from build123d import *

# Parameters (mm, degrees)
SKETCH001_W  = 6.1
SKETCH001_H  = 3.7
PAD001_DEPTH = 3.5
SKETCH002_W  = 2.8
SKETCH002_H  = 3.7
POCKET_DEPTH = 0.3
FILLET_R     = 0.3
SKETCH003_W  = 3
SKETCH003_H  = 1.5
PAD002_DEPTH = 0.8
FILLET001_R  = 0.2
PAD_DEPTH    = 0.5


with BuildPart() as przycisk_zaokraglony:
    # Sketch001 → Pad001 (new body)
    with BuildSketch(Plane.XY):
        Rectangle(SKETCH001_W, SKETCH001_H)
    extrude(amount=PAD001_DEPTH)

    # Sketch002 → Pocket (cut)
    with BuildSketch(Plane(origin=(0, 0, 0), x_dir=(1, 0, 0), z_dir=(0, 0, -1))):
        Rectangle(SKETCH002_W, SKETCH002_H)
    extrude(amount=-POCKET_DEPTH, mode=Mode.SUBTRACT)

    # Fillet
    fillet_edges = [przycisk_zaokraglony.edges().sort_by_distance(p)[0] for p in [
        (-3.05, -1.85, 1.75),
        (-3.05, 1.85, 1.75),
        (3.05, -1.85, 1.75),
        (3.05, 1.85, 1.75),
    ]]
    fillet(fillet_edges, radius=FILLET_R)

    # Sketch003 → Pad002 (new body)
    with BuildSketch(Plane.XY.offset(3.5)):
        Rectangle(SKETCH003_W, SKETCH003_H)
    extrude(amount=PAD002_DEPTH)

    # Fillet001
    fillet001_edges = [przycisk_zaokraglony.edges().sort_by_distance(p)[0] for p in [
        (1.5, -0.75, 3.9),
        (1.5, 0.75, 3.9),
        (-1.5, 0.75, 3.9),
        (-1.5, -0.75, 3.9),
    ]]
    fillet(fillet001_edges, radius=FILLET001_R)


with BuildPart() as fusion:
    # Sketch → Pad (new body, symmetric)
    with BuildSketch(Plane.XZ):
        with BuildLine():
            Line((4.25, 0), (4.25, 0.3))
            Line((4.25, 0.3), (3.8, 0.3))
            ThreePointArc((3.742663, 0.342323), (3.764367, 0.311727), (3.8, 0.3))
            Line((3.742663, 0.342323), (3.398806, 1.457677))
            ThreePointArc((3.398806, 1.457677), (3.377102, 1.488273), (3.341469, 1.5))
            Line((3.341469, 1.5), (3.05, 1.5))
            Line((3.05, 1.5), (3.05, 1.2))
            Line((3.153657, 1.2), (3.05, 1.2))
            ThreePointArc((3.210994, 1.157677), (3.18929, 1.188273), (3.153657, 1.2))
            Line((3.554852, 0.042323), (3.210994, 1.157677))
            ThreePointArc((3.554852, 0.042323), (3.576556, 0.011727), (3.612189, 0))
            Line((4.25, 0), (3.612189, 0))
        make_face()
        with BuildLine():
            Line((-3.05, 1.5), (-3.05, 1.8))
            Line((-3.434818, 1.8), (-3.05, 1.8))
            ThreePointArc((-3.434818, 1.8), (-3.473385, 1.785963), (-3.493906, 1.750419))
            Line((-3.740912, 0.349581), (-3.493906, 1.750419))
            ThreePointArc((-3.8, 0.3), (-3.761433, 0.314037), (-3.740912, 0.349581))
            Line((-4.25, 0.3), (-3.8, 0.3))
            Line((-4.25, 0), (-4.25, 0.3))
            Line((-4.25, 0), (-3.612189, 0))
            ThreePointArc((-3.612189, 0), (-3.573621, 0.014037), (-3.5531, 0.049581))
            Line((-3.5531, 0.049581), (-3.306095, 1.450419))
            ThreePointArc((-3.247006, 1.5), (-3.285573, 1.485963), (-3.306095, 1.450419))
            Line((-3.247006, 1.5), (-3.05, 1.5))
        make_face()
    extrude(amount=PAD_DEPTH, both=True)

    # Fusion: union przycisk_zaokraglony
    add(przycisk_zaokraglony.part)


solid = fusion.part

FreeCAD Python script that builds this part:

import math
import FreeCAD as App
import Part
import Sketcher
Q = App.Units.Quantity


def edges_at(feature, points):
    """Names of the edges that pass closest to the given points."""
    edges = feature.Shape.Edges
    near = lambda p: min(range(len(edges)), key=lambda i: edges[i].distToShape(Part.Vertex(*p))[0])
    return sorted({f"Edge{near(p) + 1}" for p in points})

doc = App.newDocument("Part")
params = doc.addObject("Spreadsheet::Sheet", "Params")
for row, (alias, value) in enumerate([
    ("sketch1_width", "6.1 mm"),
    ("sketch1_height", "3.7 mm"),
    ("pad1_length", "3.5 mm"),
    ("sketch2_width", "2.8 mm"),
    ("sketch2_height", "3.7 mm"),
    ("pocket1_length", "0.3 mm"),
    ("fillet_radius", "0.3 mm"),
    ("sketch3_width", "3 mm"),
    ("sketch3_height", "1.5 mm"),
    ("pad2_length", "0.8 mm"),
    ("fillet2_radius", "0.2 mm"),
    ("sketch4_radius", "0.06 mm"),
    ("sketch4_height", "0.3 mm"),
    ("sketch4_width", "0.45 mm"),
    ("pad3_length", "1 mm"),
], start=1):
    params.set(f"A{row}", alias)
    params.set(f"B{row}", "=" + value)
    params.setAlias(f"B{row}", alias)

body = doc.addObject("PartDesign::Body", "Body")

# Sketch on XY plane
sketch1 = doc.addObject("Sketcher::SketchObject", "Sketch")
body.addObject(sketch1)
sketch1.AttachmentSupport = (doc.XY_Plane, [""])
sketch1.MapMode = "FlatFace"
sketch1.addGeometry([
    Part.LineSegment(App.Vector(-3.05, 1.85, 0), App.Vector(-3.05, -1.85, 0)),
    Part.LineSegment(App.Vector(-3.05, -1.85, 0), App.Vector(3.05, -1.85, 0)),
    Part.LineSegment(App.Vector(3.05, -1.85, 0), App.Vector(3.05, 1.85, 0)),
    Part.LineSegment(App.Vector(3.05, 1.85, 0), App.Vector(-3.05, 1.85, 0)),
], False)
sketch1.addConstraint([
    Sketcher.Constraint("Coincident", 0, 2, 1, 1),
    Sketcher.Constraint("Coincident", 1, 2, 2, 1),
    Sketcher.Constraint("Coincident", 2, 2, 3, 1),
    Sketcher.Constraint("Coincident", 3, 2, 0, 1),
    Sketcher.Constraint("Vertical", 0),
    Sketcher.Constraint("Horizontal", 1),
    Sketcher.Constraint("Vertical", 2),
    Sketcher.Constraint("Horizontal", 3),
    Sketcher.Constraint("Symmetric", 0, 2, 2, 2, -1, 1),
    Sketcher.Constraint("DistanceX", 1, 1, 1, 2, Q("6.1 mm")),
    Sketcher.Constraint("DistanceY", 0, 2, 0, 1, Q("3.7 mm")),
])
sketch1.setExpression("Constraints[9]", "Params.sketch1_width")
sketch1.setExpression("Constraints[10]", "Params.sketch1_height")
pad1 = doc.addObject("PartDesign::Pad", "Pad")
body.addObject(pad1)
pad1.Profile = sketch1
pad1.setExpression("Length", "Params.pad1_length")

# Sketch on XY plane
sketch2 = doc.addObject("Sketcher::SketchObject", "Sketch001")
body.addObject(sketch2)
sketch2.AttachmentSupport = (doc.XY_Plane, [""])
sketch2.MapMode = "FlatFace"
sketch2.addGeometry([
    Part.LineSegment(App.Vector(-1.4, -1.85, 0), App.Vector(-1.4, 1.85, 0)),
    Part.LineSegment(App.Vector(-1.4, 1.85, 0), App.Vector(1.4, 1.85, 0)),
    Part.LineSegment(App.Vector(1.4, 1.85, 0), App.Vector(1.4, -1.85, 0)),
    Part.LineSegment(App.Vector(1.4, -1.85, 0), App.Vector(-1.4, -1.85, 0)),
], False)
sketch2.addConstraint([
    Sketcher.Constraint("Coincident", 0, 2, 1, 1),
    Sketcher.Constraint("Coincident", 1, 2, 2, 1),
    Sketcher.Constraint("Coincident", 2, 2, 3, 1),
    Sketcher.Constraint("Coincident", 3, 2, 0, 1),
    Sketcher.Constraint("Vertical", 0),
    Sketcher.Constraint("Horizontal", 1),
    Sketcher.Constraint("Vertical", 2),
    Sketcher.Constraint("Horizontal", 3),
    Sketcher.Constraint("Symmetric", 0, 2, 2, 2, -1, 1),
    Sketcher.Constraint("DistanceX", 1, 1, 1, 2, Q("2.8 mm")),
    Sketcher.Constraint("DistanceY", 0, 1, 0, 2, Q("3.7 mm")),
])
sketch2.setExpression("Constraints[9]", "Params.sketch2_width")
sketch2.setExpression("Constraints[10]", "Params.sketch2_height")
pocket1 = doc.addObject("PartDesign::Pocket", "Pocket")
body.addObject(pocket1)
pocket1.Profile = sketch2
pocket1.setExpression("Length", "Params.pocket1_length")
pocket1.Reversed = True
doc.recompute()

fillet = doc.addObject("PartDesign::Fillet", "Fillet")
body.addObject(fillet)
fillet.Base = (pocket1, edges_at(pocket1, [
    (-3.05, -1.85, 1.75),
    (-3.05, 1.85, 1.75),
    (3.05, -1.85, 1.75),
    (3.05, 1.85, 1.75),
]))
fillet.setExpression("Radius", "Params.fillet_radius")

# Sketch on XY plane
sketch3 = doc.addObject("Sketcher::SketchObject", "Sketch002")
body.addObject(sketch3)
sketch3.AttachmentSupport = (doc.XY_Plane, [""])
sketch3.MapMode = "FlatFace"
sketch3.AttachmentOffset = App.Placement(App.Vector(0, 0, 3.5), App.Rotation())
sketch3.addGeometry([
    Part.LineSegment(App.Vector(-1.5, 0.75, 0), App.Vector(-1.5, -0.75, 0)),
    Part.LineSegment(App.Vector(-1.5, -0.75, 0), App.Vector(1.5, -0.75, 0)),
    Part.LineSegment(App.Vector(1.5, -0.75, 0), App.Vector(1.5, 0.75, 0)),
    Part.LineSegment(App.Vector(1.5, 0.75, 0), App.Vector(-1.5, 0.75, 0)),
], False)
sketch3.addConstraint([
    Sketcher.Constraint("Coincident", 0, 2, 1, 1),
    Sketcher.Constraint("Coincident", 1, 2, 2, 1),
    Sketcher.Constraint("Coincident", 2, 2, 3, 1),
    Sketcher.Constraint("Coincident", 3, 2, 0, 1),
    Sketcher.Constraint("Vertical", 0),
    Sketcher.Constraint("Horizontal", 1),
    Sketcher.Constraint("Vertical", 2),
    Sketcher.Constraint("Horizontal", 3),
    Sketcher.Constraint("Symmetric", 0, 2, 2, 2, -1, 1),
    Sketcher.Constraint("DistanceX", 1, 1, 1, 2, Q("3 mm")),
    Sketcher.Constraint("DistanceY", 0, 2, 0, 1, Q("1.5 mm")),
])
sketch3.setExpression("Constraints[9]", "Params.sketch3_width")
sketch3.setExpression("Constraints[10]", "Params.sketch3_height")
pad2 = doc.addObject("PartDesign::Pad", "Pad001")
body.addObject(pad2)
pad2.Profile = sketch3
pad2.setExpression("Length", "Params.pad2_length")
doc.recompute()

fillet2 = doc.addObject("PartDesign::Fillet", "Fillet001")
body.addObject(fillet2)
fillet2.Base = (pad2, edges_at(pad2, [
    (1.5, -0.75, 3.9),
    (1.5, 0.75, 3.9),
    (-1.5, 0.75, 3.9),
    (-1.5, -0.75, 3.9),
]))
fillet2.setExpression("Radius", "Params.fillet2_radius")
body2 = doc.addObject("PartDesign::Body", "Body001")
body2.AllowCompound = True

# Sketch on XZ plane
sketch4 = doc.addObject("Sketcher::SketchObject", "Sketch003")
body2.addObject(sketch4)
sketch4.AttachmentSupport = (doc.getObject("XZ_Plane001"), [""])
sketch4.MapMode = "FlatFace"
sketch4.addGeometry([
    Part.LineSegment(App.Vector(4.25, 0, 0), App.Vector(4.25, 0.3, 0)),  # 0
    Part.LineSegment(App.Vector(4.25, 0.3, 0), App.Vector(3.8, 0.3, 0)),  # 1
    Part.ArcOfCircle(Part.Circle(App.Vector(3.8, 0.36, 0), App.Vector(0, 0, 1), 0.06), math.radians(-162.865165), math.radians(-90.000217)),  # 2
    Part.LineSegment(App.Vector(3.742663, 0.342323, 0), App.Vector(3.398806, 1.457677, 0)),  # 3
    Part.ArcOfCircle(Part.Circle(App.Vector(3.341469, 1.44, 0), App.Vector(0, 0, 1), 0.06), math.radians(17.134835), math.radians(89.999783)),  # 4
    Part.LineSegment(App.Vector(3.341469, 1.5, 0), App.Vector(3.05, 1.5, 0)),  # 5
    Part.LineSegment(App.Vector(3.05, 1.5, 0), App.Vector(3.05, 1.2, 0)),  # 6
    Part.LineSegment(App.Vector(3.05, 1.2, 0), App.Vector(3.153657, 1.2, 0)),  # 7
    Part.ArcOfCircle(Part.Circle(App.Vector(3.153657, 1.14, 0), App.Vector(0, 0, 1), 0.06), math.radians(17.134835), math.radians(89.999783)),  # 8
    Part.LineSegment(App.Vector(3.210994, 1.157677, 0), App.Vector(3.554852, 0.042323, 0)),  # 9
    Part.ArcOfCircle(Part.Circle(App.Vector(3.612189, 0.06, 0), App.Vector(0, 0, 1), 0.06), math.radians(-162.865165), math.radians(-90.000217)),  # 10
    Part.LineSegment(App.Vector(3.612189, 0, 0), App.Vector(4.25, 0, 0)),  # 11
    Part.LineSegment(App.Vector(-3.05, 1.5, 0), App.Vector(-3.05, 1.8, 0)),  # 12
    Part.LineSegment(App.Vector(-3.05, 1.8, 0), App.Vector(-3.434818, 1.8, 0)),  # 13
    Part.ArcOfCircle(Part.Circle(App.Vector(-3.434819, 1.740001, 0), App.Vector(0, 0, 1), 0.059999), math.radians(89.999437), math.radians(170.000884)),  # 14
    Part.LineSegment(App.Vector(-3.493906, 1.750419, 0), App.Vector(-3.740912, 0.349581, 0)),  # 15
    Part.ArcOfCircle(Part.Circle(App.Vector(-3.799999, 0.359999, 0), App.Vector(0, 0, 1), 0.059999), math.radians(-90.000563), math.radians(-9.999116)),  # 16
    Part.LineSegment(App.Vector(-3.8, 0.3, 0), App.Vector(-4.25, 0.3, 0)),  # 17
    Part.LineSegment(App.Vector(-4.25, 0.3, 0), App.Vector(-4.25, 0, 0)),  # 18
    Part.LineSegment(App.Vector(-4.25, 0, 0), App.Vector(-3.612189, 0, 0)),  # 19
    Part.ArcOfCircle(Part.Circle(App.Vector(-3.612187, 0.059999, 0), App.Vector(0, 0, 1), 0.059999), math.radians(-90.001518), math.radians(-9.999116)),  # 20
    Part.LineSegment(App.Vector(-3.5531, 0.049581, 0), App.Vector(-3.306095, 1.450419, 0)),  # 21
    Part.ArcOfCircle(Part.Circle(App.Vector(-3.247006, 1.439999, 0), App.Vector(0, 0, 1), 0.060001), math.radians(90.000168), math.radians(169.999197)),  # 22
    Part.LineSegment(App.Vector(-3.247006, 1.5, 0), App.Vector(-3.05, 1.5, 0)),  # 23
], False)
sketch4.addConstraint([
    Sketcher.Constraint("Coincident", 0, 2, 1, 1),
    Sketcher.Constraint("Coincident", 1, 2, 2, 2),
    Sketcher.Constraint("Coincident", 2, 1, 3, 1),
    Sketcher.Constraint("Coincident", 3, 2, 4, 1),
    Sketcher.Constraint("Coincident", 4, 2, 5, 1),
    Sketcher.Constraint("Coincident", 5, 2, 6, 1),
    Sketcher.Constraint("Coincident", 6, 2, 7, 1),
    Sketcher.Constraint("Coincident", 7, 2, 8, 2),
    Sketcher.Constraint("Coincident", 8, 1, 9, 1),
    Sketcher.Constraint("Coincident", 9, 2, 10, 1),
    Sketcher.Constraint("Coincident", 10, 2, 11, 1),
    Sketcher.Constraint("Coincident", 11, 2, 0, 1),
    Sketcher.Constraint("Coincident", 12, 2, 13, 1),
    Sketcher.Constraint("Coincident", 13, 2, 14, 1),
    Sketcher.Constraint("Coincident", 14, 2, 15, 1),
    Sketcher.Constraint("Coincident", 15, 2, 16, 2),
    Sketcher.Constraint("Coincident", 16, 1, 17, 1),
    Sketcher.Constraint("Coincident", 17, 2, 18, 1),
    Sketcher.Constraint("Coincident", 18, 2, 19, 1),
    Sketcher.Constraint("Coincident", 19, 2, 20, 1),
    Sketcher.Constraint("Coincident", 20, 2, 21, 1),
    Sketcher.Constraint("Coincident", 21, 2, 22, 2),
    Sketcher.Constraint("Coincident", 22, 1, 23, 1),
    Sketcher.Constraint("Coincident", 23, 2, 12, 1),
    Sketcher.Constraint("Vertical", 0),
    Sketcher.Constraint("Horizontal", 1),
    Sketcher.Constraint("Horizontal", 5),
    Sketcher.Constraint("Vertical", 6),
    Sketcher.Constraint("Horizontal", 7),
    Sketcher.Constraint("Horizontal", 11),
    Sketcher.Constraint("Vertical", 12),
    Sketcher.Constraint("Horizontal", 13),
    Sketcher.Constraint("Horizontal", 17),
    Sketcher.Constraint("Vertical", 18),
    Sketcher.Constraint("Horizontal", 19),
    Sketcher.Constraint("Horizontal", 23),
    Sketcher.Constraint("Equal", 2, 4),
    Sketcher.Constraint("Equal", 4, 8),
    Sketcher.Constraint("Equal", 8, 10),
    Sketcher.Constraint("Equal", 10, 14),
    Sketcher.Constraint("Equal", 14, 16),
    Sketcher.Constraint("Equal", 16, 20),
    Sketcher.Constraint("Equal", 10, 22),
    Sketcher.Constraint("Symmetric", 11, 2, 18, 2, -1, 1),
    Sketcher.Constraint("Symmetric", 2, 3, 16, 3, -2),
    Sketcher.Constraint("Symmetric", 10, 3, 20, 3, -2),
    Sketcher.Constraint("Symmetric", 5, 2, 23, 2, -2),
    Sketcher.Constraint("Parallel", 3, 9),
    Sketcher.Constraint("Parallel", 15, 21),
    Sketcher.Constraint("Vertical", 2, 3, 1, 2),
    Sketcher.Constraint("Vertical", 8, 3, 7, 2),
    Sketcher.Constraint("Vertical", 14, 3, 13, 2),
    Sketcher.Constraint("Vertical", 20, 3, 19, 2),
    Sketcher.Constraint("Equal", 1, 17),
    Sketcher.Constraint("Equal", 11, 19),
    Sketcher.Constraint("Equal", 0, 6),
    Sketcher.Constraint("Equal", 6, 12),
    Sketcher.Constraint("Equal", 3, 9),
    Sketcher.Constraint("Equal", 15, 21),
    Sketcher.Constraint("Angle", 15, Q("-100.000018 deg")),
    Sketcher.Constraint("Radius", 2, Q("0.06 mm")),
    Sketcher.Constraint("DistanceY", 0, 1, 0, 2, Q("0.3 mm")),
    Sketcher.Constraint("DistanceX", 1, 2, 1, 1, Q("0.45 mm")),
    Sketcher.Constraint("DistanceX", -1, 1, 2, 3, Q("3.8 mm")),
    Sketcher.Constraint("DistanceY", -1, 1, 4, 2, Q("1.5 mm")),
    Sketcher.Constraint("DistanceY", 8, 1, 3, 2, Q("0.3 mm")),
    Sketcher.Constraint("DistanceX", 12, 2, 5, 2, Q("6.1 mm")),
    Sketcher.Constraint("DistanceY", 20, 2, 15, 2, Q("0.3 mm")),
    Sketcher.Constraint("DistanceX", 5, 2, 5, 1, Q("0.291469 mm")),
    Sketcher.Constraint("DistanceX", 11, 1, 11, 2, Q("0.637811 mm")),
    Sketcher.Constraint("DistanceX", 20, 2, -1, 1, Q("3.5531 mm")),
    Sketcher.Constraint("DistanceX", 14, 2, 22, 3, Q("0.2469 mm")),
    Sketcher.Constraint("DistanceX", 14, 2, 22, 1, Q("0.2469 mm")),
    Sketcher.Constraint("DistanceX", 7, 1, 7, 2, Q("0.103657 mm")),
    Sketcher.Constraint("DistanceX", -1, 1, 9, 2, Q("3.554852 mm")),
    Sketcher.Constraint("DistanceX", 8, 3, 3, 2, Q("0.245149 mm")),
])
sketch4.setExpression("Constraints[60]", "Params.sketch4_radius")
sketch4.setExpression("Constraints[61]", "Params.sketch4_height")
sketch4.setExpression("Constraints[62]", "Params.sketch4_width")
pad3 = doc.addObject("PartDesign::Pad", "Pad002")
body2.addObject(pad3)
pad3.Profile = sketch4
pad3.setExpression("Length", "Params.pad3_length")
pad3.Midplane = True
doc.recompute()

boolean = doc.addObject("PartDesign::Boolean", "Boolean")
body2.addObject(boolean)
boolean.Type = "Fuse"
boolean.addObjects([body])

doc.recompute()
